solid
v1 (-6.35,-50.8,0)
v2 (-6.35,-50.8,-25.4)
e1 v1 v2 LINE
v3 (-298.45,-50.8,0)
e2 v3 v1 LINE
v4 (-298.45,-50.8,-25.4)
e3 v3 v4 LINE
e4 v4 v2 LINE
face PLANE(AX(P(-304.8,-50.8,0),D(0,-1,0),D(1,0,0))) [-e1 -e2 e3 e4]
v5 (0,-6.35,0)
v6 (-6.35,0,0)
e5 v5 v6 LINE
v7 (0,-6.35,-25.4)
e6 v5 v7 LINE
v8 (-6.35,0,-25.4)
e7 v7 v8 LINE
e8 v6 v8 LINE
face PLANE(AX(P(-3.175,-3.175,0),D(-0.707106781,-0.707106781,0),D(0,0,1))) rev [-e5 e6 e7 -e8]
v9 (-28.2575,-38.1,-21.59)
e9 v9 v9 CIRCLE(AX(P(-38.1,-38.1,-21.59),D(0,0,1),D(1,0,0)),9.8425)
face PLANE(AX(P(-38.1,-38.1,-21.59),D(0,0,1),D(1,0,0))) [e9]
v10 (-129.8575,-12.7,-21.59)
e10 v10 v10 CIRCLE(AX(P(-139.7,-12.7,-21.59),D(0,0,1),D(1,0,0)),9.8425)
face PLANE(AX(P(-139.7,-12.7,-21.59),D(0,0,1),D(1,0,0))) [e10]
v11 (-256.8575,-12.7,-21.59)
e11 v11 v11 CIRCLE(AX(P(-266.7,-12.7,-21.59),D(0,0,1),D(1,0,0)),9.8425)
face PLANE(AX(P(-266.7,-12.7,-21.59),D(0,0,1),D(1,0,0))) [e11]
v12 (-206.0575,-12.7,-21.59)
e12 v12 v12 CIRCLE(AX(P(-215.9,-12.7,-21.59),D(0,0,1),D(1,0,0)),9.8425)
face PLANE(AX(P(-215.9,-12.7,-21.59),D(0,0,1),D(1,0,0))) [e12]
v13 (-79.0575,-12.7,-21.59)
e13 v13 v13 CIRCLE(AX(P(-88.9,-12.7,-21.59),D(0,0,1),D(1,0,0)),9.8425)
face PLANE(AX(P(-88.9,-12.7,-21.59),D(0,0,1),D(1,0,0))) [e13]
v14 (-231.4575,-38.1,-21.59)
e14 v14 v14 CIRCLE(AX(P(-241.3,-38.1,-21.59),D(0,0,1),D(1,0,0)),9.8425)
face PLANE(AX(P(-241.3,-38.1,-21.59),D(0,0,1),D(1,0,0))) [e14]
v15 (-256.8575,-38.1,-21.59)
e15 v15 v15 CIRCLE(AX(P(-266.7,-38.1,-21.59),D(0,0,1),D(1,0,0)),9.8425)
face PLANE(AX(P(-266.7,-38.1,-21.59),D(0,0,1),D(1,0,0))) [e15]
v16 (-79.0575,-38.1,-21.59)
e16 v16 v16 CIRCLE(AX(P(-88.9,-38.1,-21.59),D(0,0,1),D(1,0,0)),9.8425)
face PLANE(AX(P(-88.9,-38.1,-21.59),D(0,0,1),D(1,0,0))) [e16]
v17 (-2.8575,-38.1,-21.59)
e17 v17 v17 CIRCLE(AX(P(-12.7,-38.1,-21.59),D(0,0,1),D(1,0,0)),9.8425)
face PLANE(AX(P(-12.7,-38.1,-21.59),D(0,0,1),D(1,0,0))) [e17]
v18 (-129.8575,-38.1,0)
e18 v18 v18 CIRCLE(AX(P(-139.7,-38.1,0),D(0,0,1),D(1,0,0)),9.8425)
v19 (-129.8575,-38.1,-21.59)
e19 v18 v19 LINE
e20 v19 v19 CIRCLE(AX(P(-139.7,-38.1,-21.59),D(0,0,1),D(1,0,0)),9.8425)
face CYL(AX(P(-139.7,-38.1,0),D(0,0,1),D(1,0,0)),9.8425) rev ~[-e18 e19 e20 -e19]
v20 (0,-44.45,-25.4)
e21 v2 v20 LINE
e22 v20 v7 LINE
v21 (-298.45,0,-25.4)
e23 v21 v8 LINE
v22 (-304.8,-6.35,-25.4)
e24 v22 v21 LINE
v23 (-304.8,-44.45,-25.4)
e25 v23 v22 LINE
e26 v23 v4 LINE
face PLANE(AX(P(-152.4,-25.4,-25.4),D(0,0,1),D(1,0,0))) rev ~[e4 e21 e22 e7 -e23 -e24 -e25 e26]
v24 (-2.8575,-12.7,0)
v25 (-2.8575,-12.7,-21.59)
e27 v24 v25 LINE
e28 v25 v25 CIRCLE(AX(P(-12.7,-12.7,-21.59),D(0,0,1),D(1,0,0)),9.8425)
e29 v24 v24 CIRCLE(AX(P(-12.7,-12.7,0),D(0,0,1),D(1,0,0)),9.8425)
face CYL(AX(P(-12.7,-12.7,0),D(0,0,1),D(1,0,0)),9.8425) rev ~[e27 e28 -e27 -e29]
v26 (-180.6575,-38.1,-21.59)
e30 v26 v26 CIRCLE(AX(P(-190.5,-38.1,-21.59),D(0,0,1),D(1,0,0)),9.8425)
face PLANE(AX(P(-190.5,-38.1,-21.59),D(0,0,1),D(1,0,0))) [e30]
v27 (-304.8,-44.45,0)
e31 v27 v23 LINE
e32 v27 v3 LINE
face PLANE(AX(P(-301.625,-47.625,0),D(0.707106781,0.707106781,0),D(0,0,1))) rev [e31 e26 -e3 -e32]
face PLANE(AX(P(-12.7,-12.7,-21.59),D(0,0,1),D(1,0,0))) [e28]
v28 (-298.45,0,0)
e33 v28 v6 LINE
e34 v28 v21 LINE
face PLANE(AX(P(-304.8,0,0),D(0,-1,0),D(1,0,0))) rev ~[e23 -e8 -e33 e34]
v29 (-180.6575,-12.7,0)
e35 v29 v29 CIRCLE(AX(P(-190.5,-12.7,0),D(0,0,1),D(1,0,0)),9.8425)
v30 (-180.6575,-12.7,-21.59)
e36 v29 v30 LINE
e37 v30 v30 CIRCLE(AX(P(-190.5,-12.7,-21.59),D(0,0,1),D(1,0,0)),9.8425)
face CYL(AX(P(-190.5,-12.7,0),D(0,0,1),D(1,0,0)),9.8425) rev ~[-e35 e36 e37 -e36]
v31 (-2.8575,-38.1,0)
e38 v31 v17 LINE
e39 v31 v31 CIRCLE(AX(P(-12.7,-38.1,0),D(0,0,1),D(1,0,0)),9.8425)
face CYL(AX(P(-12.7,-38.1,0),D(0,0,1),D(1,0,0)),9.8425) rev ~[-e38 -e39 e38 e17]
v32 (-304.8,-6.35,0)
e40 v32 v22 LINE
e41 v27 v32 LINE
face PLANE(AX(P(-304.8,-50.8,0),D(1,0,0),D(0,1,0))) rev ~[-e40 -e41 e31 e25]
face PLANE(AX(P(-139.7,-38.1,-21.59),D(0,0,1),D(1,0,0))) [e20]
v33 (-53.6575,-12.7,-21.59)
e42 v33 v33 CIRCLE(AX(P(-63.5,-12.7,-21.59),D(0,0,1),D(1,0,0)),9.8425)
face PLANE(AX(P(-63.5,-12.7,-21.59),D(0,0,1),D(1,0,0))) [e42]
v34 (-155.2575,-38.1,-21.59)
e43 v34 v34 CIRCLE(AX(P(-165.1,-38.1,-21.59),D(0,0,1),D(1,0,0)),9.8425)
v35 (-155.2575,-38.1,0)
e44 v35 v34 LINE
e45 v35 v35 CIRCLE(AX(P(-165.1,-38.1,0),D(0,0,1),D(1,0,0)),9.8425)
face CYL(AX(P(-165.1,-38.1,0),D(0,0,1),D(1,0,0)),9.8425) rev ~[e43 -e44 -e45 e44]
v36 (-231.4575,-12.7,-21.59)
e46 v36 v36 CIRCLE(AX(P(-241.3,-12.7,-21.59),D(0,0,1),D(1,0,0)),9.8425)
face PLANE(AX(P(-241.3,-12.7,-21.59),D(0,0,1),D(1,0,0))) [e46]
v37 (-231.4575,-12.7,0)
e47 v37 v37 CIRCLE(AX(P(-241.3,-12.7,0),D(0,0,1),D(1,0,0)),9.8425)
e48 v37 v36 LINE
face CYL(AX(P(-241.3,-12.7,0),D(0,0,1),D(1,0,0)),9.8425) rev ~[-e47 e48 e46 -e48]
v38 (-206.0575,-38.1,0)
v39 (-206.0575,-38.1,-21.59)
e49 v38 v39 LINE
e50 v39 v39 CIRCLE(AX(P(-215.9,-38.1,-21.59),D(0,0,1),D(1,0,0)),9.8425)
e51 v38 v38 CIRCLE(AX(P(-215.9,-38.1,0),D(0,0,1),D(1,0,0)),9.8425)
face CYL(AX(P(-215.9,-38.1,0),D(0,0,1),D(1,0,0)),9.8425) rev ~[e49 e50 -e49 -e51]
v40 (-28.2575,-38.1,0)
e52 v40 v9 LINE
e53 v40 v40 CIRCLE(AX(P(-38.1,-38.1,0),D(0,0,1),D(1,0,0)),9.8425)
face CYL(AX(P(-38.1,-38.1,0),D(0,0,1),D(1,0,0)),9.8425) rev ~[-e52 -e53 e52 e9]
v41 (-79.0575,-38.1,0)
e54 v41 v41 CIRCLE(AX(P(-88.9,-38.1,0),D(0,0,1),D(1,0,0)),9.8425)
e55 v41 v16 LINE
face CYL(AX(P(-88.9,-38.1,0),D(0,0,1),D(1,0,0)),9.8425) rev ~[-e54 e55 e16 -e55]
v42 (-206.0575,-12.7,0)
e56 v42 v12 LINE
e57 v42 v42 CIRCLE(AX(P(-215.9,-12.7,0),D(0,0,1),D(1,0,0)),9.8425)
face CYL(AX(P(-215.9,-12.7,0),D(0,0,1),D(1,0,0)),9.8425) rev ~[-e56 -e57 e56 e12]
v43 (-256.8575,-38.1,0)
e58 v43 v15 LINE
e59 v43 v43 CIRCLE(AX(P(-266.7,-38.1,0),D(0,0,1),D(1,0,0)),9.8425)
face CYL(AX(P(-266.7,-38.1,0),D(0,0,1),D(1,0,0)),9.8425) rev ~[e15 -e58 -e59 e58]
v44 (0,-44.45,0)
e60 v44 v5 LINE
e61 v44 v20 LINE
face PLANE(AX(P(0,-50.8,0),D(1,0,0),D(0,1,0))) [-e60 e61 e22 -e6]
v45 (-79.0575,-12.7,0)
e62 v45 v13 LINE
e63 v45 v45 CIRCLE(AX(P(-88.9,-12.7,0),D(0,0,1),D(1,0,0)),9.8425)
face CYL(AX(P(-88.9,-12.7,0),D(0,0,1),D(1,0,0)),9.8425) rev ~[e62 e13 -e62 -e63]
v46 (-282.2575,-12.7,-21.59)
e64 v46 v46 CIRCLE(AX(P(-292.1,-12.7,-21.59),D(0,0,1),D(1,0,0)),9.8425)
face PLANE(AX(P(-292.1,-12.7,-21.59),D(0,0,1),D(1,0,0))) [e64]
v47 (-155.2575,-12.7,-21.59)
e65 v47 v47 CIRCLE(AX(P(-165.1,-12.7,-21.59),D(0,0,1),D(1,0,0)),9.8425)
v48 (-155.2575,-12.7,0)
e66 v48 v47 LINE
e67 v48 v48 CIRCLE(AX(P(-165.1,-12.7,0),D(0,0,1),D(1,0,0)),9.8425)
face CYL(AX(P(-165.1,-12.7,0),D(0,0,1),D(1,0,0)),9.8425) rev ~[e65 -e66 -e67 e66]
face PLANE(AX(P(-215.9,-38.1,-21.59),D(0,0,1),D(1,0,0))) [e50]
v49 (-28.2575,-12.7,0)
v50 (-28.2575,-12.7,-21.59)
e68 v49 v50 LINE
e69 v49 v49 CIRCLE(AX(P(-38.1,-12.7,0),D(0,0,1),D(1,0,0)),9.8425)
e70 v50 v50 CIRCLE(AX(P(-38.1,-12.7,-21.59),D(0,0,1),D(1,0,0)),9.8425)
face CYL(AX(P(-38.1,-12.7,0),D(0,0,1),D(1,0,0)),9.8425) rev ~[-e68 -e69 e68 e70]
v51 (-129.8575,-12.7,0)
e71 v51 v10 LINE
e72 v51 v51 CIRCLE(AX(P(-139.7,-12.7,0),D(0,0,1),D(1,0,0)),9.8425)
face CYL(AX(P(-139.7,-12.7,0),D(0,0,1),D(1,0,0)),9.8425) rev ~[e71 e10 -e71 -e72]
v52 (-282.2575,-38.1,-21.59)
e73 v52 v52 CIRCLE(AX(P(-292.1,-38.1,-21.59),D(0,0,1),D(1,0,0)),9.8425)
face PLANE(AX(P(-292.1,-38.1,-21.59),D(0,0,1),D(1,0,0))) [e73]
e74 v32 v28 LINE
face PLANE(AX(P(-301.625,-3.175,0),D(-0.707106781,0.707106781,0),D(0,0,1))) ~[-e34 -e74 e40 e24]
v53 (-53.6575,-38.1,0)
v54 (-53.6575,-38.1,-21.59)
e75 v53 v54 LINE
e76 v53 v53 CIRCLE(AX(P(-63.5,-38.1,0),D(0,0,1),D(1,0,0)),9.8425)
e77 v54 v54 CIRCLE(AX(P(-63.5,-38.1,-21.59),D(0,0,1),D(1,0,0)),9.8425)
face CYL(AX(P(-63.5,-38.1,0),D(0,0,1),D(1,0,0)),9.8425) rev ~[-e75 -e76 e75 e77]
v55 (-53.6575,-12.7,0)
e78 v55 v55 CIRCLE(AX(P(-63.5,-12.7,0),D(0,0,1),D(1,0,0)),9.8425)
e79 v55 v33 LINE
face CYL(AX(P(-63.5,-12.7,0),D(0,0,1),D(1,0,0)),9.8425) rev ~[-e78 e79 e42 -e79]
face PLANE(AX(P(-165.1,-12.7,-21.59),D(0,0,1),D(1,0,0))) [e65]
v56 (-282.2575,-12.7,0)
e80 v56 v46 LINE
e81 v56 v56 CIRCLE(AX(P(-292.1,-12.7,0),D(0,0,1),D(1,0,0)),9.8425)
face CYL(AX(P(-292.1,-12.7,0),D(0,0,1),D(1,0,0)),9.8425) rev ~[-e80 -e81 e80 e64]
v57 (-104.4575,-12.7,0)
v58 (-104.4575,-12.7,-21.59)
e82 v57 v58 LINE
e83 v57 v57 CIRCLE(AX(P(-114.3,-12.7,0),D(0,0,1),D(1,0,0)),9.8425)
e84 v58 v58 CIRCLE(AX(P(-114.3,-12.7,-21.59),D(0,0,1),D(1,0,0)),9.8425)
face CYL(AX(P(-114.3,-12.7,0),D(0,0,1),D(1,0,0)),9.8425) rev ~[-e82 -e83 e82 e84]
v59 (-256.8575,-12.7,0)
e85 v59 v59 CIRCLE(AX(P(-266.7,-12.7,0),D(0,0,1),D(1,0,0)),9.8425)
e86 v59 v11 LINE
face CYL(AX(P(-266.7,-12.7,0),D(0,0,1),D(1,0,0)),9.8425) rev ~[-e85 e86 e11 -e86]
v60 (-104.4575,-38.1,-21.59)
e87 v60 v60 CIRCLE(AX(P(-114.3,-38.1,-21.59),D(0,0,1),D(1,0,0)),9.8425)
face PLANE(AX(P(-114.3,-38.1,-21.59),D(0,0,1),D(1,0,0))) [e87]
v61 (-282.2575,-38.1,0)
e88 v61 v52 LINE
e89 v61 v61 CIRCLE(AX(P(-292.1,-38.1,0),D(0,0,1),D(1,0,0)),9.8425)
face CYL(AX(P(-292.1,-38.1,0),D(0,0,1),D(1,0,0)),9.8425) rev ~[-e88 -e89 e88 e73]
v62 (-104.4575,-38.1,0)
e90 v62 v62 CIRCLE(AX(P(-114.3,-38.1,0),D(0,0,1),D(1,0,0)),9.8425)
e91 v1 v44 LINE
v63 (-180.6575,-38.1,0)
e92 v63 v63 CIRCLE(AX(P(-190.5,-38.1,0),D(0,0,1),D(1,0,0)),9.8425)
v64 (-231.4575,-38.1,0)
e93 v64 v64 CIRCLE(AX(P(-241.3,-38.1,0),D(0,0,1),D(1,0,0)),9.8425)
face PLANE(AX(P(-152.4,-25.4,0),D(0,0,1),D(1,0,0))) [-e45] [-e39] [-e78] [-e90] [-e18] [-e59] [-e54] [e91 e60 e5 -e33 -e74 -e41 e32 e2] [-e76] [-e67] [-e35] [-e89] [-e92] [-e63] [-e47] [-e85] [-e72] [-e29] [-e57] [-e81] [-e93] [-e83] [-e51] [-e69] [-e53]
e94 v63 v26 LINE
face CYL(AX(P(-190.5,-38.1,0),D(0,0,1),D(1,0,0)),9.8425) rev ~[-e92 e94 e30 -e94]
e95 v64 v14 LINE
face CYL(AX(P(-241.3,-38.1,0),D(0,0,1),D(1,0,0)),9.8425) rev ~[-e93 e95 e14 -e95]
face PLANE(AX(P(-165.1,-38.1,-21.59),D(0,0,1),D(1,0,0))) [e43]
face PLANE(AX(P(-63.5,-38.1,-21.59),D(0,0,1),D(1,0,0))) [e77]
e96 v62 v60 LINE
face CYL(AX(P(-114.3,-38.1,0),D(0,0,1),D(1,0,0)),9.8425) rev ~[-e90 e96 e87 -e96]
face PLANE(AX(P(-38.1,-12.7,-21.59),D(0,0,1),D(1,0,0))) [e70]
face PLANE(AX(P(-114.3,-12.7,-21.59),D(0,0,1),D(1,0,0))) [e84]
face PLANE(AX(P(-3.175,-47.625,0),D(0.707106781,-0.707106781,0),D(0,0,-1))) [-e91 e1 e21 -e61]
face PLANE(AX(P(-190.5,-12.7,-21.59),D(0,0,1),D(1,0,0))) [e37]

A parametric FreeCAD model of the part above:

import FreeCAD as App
import Part
import Sketcher

V = App.Vector
Q = App.Units.Quantity


def edges_at(feature, points):
    """Names of the edges that pass closest to the given points."""
    edges = feature.Shape.Edges
    near = lambda p: min(range(len(edges)), key=lambda i: edges[i].distToShape(Part.Vertex(*p))[0])
    return sorted({f"Edge{near(p) + 1}" for p in points})


def add_polygon(sketch, points):
    """Adds a closed chain of lines whose ends are joined by coincident constraints."""
    first, n = sketch.GeometryCount, len(points)
    for a, b in zip(points, points[1:] + points[:1]):
        sketch.addGeometry(Part.LineSegment(App.Vector(*a, 0), App.Vector(*b, 0)), False)
    for i in range(n):
        sketch.addConstraint(Sketcher.Constraint("Coincident", first + i, 2, first + (i + 1) % n, 1))

doc = App.newDocument("Part")
body = doc.addObject("PartDesign::Body", "Body")

# Sketch on XY plane
sketch1 = body.newObject("Sketcher::SketchObject", "Sketch")
sketch1.AttachmentSupport = (doc.getObject("XY_Plane"), [""])
sketch1.MapMode = "FlatFace"
add_polygon(sketch1, [(-305, 0), (-305, -51), (0, -51), (0, 0)])  # lines 0-3
sketch1.addConstraint([
    Sketcher.Constraint("Vertical", 0),
    Sketcher.Constraint("Horizontal", 1),
    Sketcher.Constraint("Vertical", 2),
    Sketcher.Constraint("Horizontal", 3),
    Sketcher.Constraint("Coincident", 2, 2, -1, 1),
    Sketcher.Constraint("DistanceX", 1, 1, 1, 2, Q("12 in")),
    Sketcher.Constraint("DistanceY", 0, 2, 0, 1, Q("2 in")),
])
pad1 = body.newObject("PartDesign::Pad", "Pad")
pad1.Profile = sketch1
pad1.Length = Q("1 in")
pad1.Reversed = True
doc.recompute()

chamfer = body.newObject("PartDesign::Chamfer", "Chamfer")
chamfer.Base = (pad1, edges_at(pad1, [
    (0, 0, -12.7),
    (0, -50.8, -12.7),
    (-304.8, -50.8, -12.7),
    (-304.8, 0, -12.7),
]))
chamfer.Size = Q("0.25 in")

# Sketch on XY plane
sketch2 = body.newObject("Sketcher::SketchObject", "Sketch001")
sketch2.AttachmentSupport = (doc.getObject("XY_Plane"), [""])
sketch2.MapMode = "FlatFace"
sketch2.addGeometry([
    Part.Circle(V(-13, -13, 0), V(0, 0, 1), 10),  # 0
    Part.Circle(V(-13, -38, 0), V(0, 0, 1), 10),  # 1
    Part.Circle(V(-38, -13, 0), V(0, 0, 1), 10),  # 2
    Part.Circle(V(-38, -38, 0), V(0, 0, 1), 10),  # 3
    Part.Circle(V(-64, -13, 0), V(0, 0, 1), 10),  # 4
    Part.Circle(V(-64, -38, 0), V(0, 0, 1), 10),  # 5
    Part.Circle(V(-89, -13, 0), V(0, 0, 1), 10),  # 6
    Part.Circle(V(-89, -38, 0), V(0, 0, 1), 10),  # 7
    Part.Circle(V(-114, -13, 0), V(0, 0, 1), 10),  # 8
    Part.Circle(V(-114, -38, 0), V(0, 0, 1), 10),  # 9
    Part.Circle(V(-140, -13, 0), V(0, 0, 1), 10),  # 10
    Part.Circle(V(-140, -38, 0), V(0, 0, 1), 10),  # 11
    Part.Circle(V(-165, -13, 0), V(0, 0, 1), 10),  # 12
    Part.Circle(V(-165, -38, 0), V(0, 0, 1), 10),  # 13
    Part.Circle(V(-190, -13, 0), V(0, 0, 1), 10),  # 14
    Part.Circle(V(-190, -38, 0), V(0, 0, 1), 10),  # 15
    Part.Circle(V(-216, -13, 0), V(0, 0, 1), 10),  # 16
    Part.Circle(V(-216, -38, 0), V(0, 0, 1), 10),  # 17
    Part.Circle(V(-241, -13, 0), V(0, 0, 1), 10),  # 18
    Part.Circle(V(-241, -38, 0), V(0, 0, 1), 10),  # 19
    Part.Circle(V(-267, -13, 0), V(0, 0, 1), 10),  # 20
    Part.Circle(V(-267, -38, 0), V(0, 0, 1), 10),  # 21
    Part.Circle(V(-292, -13, 0), V(0, 0, 1), 10),  # 22
    Part.Circle(V(-292, -38, 0), V(0, 0, 1), 10),  # 23
], False)
sketch2.addConstraint([
    Sketcher.Constraint("Equal", 0, 1),
    Sketcher.Constraint("Equal", 1, 2),
    Sketcher.Constraint("Equal", 2, 3),
    Sketcher.Constraint("Equal", 3, 4),
    Sketcher.Constraint("Equal", 4, 5),
    Sketcher.Constraint("Equal", 5, 6),
    Sketcher.Constraint("Equal", 6, 7),
    Sketcher.Constraint("Equal", 7, 8),
    Sketcher.Constraint("Equal", 8, 9),
    Sketcher.Constraint("Equal", 9, 10),
    Sketcher.Constraint("Equal", 10, 11),
    Sketcher.Constraint("Equal", 11, 12),
    Sketcher.Constraint("Equal", 12, 13),
    Sketcher.Constraint("Equal", 13, 14),
    Sketcher.Constraint("Equal", 14, 15),
    Sketcher.Constraint("Equal", 15, 16),
    Sketcher.Constraint("Equal", 16, 17),
    Sketcher.Constraint("Equal", 17, 18),
    Sketcher.Constraint("Equal", 18, 19),
    Sketcher.Constraint("Equal", 19, 20),
    Sketcher.Constraint("Equal", 20, 21),
    Sketcher.Constraint("Equal", 21, 22),
    Sketcher.Constraint("Equal", 22, 23),
    Sketcher.Constraint("Horizontal", 0, 3, 2, 3),
    Sketcher.Constraint("Horizontal", 1, 3, 3, 3),
    Sketcher.Constraint("Horizontal", 2, 3, 4, 3),
    Sketcher.Constraint("Horizontal", 3, 3, 5, 3),
    Sketcher.Constraint("Horizontal", 4, 3, 6, 3),
    Sketcher.Constraint("Horizontal", 5, 3, 7, 3),
    Sketcher.Constraint("Horizontal", 6, 3, 8, 3),
    Sketcher.Constraint("Horizontal", 7, 3, 9, 3),
    Sketcher.Constraint("Horizontal", 8, 3, 10, 3),
    Sketcher.Constraint("Horizontal", 9, 3, 11, 3),
    Sketcher.Constraint("Horizontal", 10, 3, 12, 3),
    Sketcher.Constraint("Horizontal", 11, 3, 13, 3),
    Sketcher.Constraint("Horizontal", 12, 3, 14, 3),
    Sketcher.Constraint("Horizontal", 13, 3, 15, 3),
    Sketcher.Constraint("Horizontal", 14, 3, 16, 3),
    Sketcher.Constraint("Horizontal", 15, 3, 17, 3),
    Sketcher.Constraint("Horizontal", 16, 3, 18, 3),
    Sketcher.Constraint("Horizontal", 17, 3, 19, 3),
    Sketcher.Constraint("Horizontal", 18, 3, 20, 3),
    Sketcher.Constraint("Horizontal", 19, 3, 21, 3),
    Sketcher.Constraint("Horizontal", 20, 3, 22, 3),
    Sketcher.Constraint("Horizontal", 21, 3, 23, 3),
    Sketcher.Constraint("Vertical", 0, 3, 1, 3),
    Sketcher.Constraint("Vertical", 2, 3, 3, 3),
    Sketcher.Constraint("Vertical", 4, 3, 5, 3),
    Sketcher.Constraint("Vertical", 6, 3, 7, 3),
    Sketcher.Constraint("Vertical", 8, 3, 9, 3),
    Sketcher.Constraint("Vertical", 10, 3, 11, 3),
    Sketcher.Constraint("Vertical", 12, 3, 13, 3),
    Sketcher.Constraint("Vertical", 14, 3, 15, 3),
    Sketcher.Constraint("Vertical", 16, 3, 17, 3),
    Sketcher.Constraint("Vertical", 18, 3, 19, 3),
    Sketcher.Constraint("Vertical", 20, 3, 21, 3),
    Sketcher.Constraint("Vertical", 22, 3, 23, 3),
    Sketcher.Constraint("Diameter", 0, Q("0.775 in")),
    Sketcher.Constraint("DistanceY", 1, 3, 0, 3, Q("1 in")),
    Sketcher.Constraint("DistanceX", 2, 3, 0, 3, Q("1 in")),
    Sketcher.Constraint("DistanceX", 4, 3, 2, 3, Q("1 in")),
    Sketcher.Constraint("DistanceX", 6, 3, 4, 3, Q("1 in")),
    Sketcher.Constraint("DistanceX", 8, 3, 6, 3, Q("1 in")),
    Sketcher.Constraint("DistanceX", 10, 3, 8, 3, Q("1 in")),
    Sketcher.Constraint("DistanceX", 12, 3, 10, 3, Q("1 in")),
    Sketcher.Constraint("DistanceX", 14, 3, 12, 3, Q("1 in")),
    Sketcher.Constraint("DistanceX", 16, 3, 14, 3, Q("1 in")),
    Sketcher.Constraint("DistanceX", 18, 3, 16, 3, Q("1 in")),
    Sketcher.Constraint("DistanceX", 20, 3, 18, 3, Q("1 in")),
    Sketcher.Constraint("DistanceX", 22, 3, 20, 3, Q("1 in")),
    Sketcher.Constraint("DistanceX", 0, 3, -1, 1, Q("0.5 in")),
    Sketcher.Constraint("DistanceY", 0, 3, -1, 1, Q("0.5 in")),
])
pocket1 = body.newObject("PartDesign::Pocket", "Pocket")
pocket1.Profile = sketch2
pocket1.Length = Q("0.85 in")

doc.recompute()
